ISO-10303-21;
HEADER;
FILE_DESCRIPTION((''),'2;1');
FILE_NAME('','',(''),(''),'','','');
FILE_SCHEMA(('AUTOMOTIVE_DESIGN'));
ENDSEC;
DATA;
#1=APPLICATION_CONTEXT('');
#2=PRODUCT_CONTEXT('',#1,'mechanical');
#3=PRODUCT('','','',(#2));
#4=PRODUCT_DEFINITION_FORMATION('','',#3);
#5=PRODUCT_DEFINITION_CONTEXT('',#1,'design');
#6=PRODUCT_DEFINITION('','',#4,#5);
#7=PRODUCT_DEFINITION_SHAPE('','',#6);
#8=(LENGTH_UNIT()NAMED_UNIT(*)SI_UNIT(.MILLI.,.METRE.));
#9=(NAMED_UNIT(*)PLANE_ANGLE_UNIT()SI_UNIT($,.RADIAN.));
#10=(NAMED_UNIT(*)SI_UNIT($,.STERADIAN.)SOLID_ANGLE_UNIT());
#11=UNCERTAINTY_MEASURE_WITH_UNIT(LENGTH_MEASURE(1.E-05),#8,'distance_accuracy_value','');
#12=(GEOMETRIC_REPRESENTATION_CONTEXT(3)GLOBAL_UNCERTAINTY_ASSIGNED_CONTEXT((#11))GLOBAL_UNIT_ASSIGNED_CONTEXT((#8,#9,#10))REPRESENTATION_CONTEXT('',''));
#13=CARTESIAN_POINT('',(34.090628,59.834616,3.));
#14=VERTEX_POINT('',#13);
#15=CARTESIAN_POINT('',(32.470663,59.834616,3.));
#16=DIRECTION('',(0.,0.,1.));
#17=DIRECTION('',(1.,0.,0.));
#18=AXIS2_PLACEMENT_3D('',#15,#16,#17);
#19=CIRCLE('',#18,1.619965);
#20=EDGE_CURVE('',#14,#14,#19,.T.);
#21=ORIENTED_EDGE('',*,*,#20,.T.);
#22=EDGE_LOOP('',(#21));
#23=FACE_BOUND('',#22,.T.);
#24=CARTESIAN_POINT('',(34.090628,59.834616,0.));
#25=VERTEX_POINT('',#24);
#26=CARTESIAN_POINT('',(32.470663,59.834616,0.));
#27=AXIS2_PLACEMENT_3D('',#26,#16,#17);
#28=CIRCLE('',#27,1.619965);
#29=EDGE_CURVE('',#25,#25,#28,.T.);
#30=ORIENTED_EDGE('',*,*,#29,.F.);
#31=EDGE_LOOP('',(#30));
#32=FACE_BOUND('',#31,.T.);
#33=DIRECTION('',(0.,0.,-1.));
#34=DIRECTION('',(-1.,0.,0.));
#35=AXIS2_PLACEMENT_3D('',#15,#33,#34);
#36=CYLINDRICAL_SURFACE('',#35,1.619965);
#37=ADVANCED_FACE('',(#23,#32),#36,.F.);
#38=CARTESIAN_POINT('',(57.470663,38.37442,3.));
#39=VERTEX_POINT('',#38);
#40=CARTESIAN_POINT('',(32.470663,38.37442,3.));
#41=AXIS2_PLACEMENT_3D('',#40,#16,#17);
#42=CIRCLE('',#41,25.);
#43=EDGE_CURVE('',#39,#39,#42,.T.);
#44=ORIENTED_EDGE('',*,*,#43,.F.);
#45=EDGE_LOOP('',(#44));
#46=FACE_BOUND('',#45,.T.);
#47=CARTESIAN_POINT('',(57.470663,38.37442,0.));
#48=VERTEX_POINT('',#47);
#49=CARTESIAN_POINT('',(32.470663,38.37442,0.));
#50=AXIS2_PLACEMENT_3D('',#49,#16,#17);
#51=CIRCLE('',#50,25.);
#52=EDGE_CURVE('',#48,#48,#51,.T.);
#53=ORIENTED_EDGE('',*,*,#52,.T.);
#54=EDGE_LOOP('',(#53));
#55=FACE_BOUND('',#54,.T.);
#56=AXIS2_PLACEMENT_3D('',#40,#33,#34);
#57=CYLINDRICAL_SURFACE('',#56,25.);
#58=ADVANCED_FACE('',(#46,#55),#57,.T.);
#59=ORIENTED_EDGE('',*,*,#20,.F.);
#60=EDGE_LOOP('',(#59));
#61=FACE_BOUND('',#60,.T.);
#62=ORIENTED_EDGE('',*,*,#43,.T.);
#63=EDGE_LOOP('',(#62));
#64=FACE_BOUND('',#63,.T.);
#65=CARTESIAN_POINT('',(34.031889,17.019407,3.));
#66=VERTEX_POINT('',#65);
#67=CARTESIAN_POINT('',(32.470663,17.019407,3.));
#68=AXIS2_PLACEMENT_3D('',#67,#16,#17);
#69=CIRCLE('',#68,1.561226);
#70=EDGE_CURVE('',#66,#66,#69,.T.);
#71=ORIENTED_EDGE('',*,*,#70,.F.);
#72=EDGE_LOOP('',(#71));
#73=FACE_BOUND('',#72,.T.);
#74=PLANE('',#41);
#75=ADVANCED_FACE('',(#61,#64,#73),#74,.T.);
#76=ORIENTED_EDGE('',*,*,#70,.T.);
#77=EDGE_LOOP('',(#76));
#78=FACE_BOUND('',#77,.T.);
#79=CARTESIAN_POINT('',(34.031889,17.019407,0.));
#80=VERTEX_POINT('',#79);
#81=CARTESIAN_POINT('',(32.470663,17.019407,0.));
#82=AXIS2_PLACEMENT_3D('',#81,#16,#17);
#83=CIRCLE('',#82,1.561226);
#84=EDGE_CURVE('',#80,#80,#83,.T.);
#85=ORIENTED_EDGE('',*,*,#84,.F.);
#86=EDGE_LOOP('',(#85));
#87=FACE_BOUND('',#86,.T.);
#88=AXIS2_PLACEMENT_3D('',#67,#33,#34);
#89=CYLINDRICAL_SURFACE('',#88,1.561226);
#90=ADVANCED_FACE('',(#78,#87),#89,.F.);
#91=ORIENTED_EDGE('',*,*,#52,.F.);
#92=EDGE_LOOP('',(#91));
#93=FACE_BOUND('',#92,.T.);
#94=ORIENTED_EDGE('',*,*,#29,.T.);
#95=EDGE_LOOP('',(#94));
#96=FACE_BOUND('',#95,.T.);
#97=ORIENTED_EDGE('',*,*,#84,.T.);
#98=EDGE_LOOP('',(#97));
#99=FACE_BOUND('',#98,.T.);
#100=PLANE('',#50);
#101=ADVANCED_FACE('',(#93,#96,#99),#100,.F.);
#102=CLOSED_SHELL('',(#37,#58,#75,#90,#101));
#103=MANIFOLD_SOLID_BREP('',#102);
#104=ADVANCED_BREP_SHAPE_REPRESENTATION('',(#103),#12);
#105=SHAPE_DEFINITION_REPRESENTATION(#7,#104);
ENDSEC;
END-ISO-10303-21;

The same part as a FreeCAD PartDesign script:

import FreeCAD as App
import Part
import Sketcher
from FreeCAD import Vector
Q = App.Units.Quantity

doc = App.newDocument("Part")
body = doc.addObject("PartDesign::Body", "Body")

# Sketch on XY plane
sketch1 = doc.addObject("Sketcher::SketchObject", "Sketch")
body.addObject(sketch1)
sketch1.AttachmentSupport = (doc.XY_Plane, [""])
sketch1.MapMode = "FlatFace"
sketch1.addGeometry(Part.Circle(Vector(32.5, 38.4, 0), Vector(0, 0, 1), 25), False)
sketch1.addGeometry(Part.Circle(Vector(32.5, 17, 0), Vector(0, 0, 1), 1.6), False)
sketch1.addGeometry(Part.Circle(Vector(32.5, 59.8, 0), Vector(0, 0, 1), 1.6), False)
sketch1.addConstraint(Sketcher.Constraint("Vertical", 0, 3, 1, 3))
sketch1.addConstraint(Sketcher.Constraint("Vertical", 1, 3, 2, 3))
sketch1.addConstraint(Sketcher.Constraint("Diameter", 0, Q("50 mm")))
sketch1.addConstraint(Sketcher.Constraint("Diameter", 2, Q("3.23993 mm")))
sketch1.addConstraint(Sketcher.Constraint("Diameter", 1, Q("3.122453 mm")))
sketch1.addConstraint(Sketcher.Constraint("DistanceY", -1, 1, 0, 3, Q("38.37442 mm")))
sketch1.addConstraint(Sketcher.Constraint("DistanceY", 1, 3, 2, 3, Q("42.815209 mm")))
sketch1.addConstraint(Sketcher.Constraint("DistanceX", -1, 1, 0, 3, Q("32.470663 mm")))
sketch1.addConstraint(Sketcher.Constraint("DistanceY", -1, 1, 1, 3, Q("17.019407 mm")))
pad1 = doc.addObject("PartDesign::Pad", "Pad")
body.addObject(pad1)
pad1.Profile = sketch1
pad1.Length = 3

doc.recompute()
